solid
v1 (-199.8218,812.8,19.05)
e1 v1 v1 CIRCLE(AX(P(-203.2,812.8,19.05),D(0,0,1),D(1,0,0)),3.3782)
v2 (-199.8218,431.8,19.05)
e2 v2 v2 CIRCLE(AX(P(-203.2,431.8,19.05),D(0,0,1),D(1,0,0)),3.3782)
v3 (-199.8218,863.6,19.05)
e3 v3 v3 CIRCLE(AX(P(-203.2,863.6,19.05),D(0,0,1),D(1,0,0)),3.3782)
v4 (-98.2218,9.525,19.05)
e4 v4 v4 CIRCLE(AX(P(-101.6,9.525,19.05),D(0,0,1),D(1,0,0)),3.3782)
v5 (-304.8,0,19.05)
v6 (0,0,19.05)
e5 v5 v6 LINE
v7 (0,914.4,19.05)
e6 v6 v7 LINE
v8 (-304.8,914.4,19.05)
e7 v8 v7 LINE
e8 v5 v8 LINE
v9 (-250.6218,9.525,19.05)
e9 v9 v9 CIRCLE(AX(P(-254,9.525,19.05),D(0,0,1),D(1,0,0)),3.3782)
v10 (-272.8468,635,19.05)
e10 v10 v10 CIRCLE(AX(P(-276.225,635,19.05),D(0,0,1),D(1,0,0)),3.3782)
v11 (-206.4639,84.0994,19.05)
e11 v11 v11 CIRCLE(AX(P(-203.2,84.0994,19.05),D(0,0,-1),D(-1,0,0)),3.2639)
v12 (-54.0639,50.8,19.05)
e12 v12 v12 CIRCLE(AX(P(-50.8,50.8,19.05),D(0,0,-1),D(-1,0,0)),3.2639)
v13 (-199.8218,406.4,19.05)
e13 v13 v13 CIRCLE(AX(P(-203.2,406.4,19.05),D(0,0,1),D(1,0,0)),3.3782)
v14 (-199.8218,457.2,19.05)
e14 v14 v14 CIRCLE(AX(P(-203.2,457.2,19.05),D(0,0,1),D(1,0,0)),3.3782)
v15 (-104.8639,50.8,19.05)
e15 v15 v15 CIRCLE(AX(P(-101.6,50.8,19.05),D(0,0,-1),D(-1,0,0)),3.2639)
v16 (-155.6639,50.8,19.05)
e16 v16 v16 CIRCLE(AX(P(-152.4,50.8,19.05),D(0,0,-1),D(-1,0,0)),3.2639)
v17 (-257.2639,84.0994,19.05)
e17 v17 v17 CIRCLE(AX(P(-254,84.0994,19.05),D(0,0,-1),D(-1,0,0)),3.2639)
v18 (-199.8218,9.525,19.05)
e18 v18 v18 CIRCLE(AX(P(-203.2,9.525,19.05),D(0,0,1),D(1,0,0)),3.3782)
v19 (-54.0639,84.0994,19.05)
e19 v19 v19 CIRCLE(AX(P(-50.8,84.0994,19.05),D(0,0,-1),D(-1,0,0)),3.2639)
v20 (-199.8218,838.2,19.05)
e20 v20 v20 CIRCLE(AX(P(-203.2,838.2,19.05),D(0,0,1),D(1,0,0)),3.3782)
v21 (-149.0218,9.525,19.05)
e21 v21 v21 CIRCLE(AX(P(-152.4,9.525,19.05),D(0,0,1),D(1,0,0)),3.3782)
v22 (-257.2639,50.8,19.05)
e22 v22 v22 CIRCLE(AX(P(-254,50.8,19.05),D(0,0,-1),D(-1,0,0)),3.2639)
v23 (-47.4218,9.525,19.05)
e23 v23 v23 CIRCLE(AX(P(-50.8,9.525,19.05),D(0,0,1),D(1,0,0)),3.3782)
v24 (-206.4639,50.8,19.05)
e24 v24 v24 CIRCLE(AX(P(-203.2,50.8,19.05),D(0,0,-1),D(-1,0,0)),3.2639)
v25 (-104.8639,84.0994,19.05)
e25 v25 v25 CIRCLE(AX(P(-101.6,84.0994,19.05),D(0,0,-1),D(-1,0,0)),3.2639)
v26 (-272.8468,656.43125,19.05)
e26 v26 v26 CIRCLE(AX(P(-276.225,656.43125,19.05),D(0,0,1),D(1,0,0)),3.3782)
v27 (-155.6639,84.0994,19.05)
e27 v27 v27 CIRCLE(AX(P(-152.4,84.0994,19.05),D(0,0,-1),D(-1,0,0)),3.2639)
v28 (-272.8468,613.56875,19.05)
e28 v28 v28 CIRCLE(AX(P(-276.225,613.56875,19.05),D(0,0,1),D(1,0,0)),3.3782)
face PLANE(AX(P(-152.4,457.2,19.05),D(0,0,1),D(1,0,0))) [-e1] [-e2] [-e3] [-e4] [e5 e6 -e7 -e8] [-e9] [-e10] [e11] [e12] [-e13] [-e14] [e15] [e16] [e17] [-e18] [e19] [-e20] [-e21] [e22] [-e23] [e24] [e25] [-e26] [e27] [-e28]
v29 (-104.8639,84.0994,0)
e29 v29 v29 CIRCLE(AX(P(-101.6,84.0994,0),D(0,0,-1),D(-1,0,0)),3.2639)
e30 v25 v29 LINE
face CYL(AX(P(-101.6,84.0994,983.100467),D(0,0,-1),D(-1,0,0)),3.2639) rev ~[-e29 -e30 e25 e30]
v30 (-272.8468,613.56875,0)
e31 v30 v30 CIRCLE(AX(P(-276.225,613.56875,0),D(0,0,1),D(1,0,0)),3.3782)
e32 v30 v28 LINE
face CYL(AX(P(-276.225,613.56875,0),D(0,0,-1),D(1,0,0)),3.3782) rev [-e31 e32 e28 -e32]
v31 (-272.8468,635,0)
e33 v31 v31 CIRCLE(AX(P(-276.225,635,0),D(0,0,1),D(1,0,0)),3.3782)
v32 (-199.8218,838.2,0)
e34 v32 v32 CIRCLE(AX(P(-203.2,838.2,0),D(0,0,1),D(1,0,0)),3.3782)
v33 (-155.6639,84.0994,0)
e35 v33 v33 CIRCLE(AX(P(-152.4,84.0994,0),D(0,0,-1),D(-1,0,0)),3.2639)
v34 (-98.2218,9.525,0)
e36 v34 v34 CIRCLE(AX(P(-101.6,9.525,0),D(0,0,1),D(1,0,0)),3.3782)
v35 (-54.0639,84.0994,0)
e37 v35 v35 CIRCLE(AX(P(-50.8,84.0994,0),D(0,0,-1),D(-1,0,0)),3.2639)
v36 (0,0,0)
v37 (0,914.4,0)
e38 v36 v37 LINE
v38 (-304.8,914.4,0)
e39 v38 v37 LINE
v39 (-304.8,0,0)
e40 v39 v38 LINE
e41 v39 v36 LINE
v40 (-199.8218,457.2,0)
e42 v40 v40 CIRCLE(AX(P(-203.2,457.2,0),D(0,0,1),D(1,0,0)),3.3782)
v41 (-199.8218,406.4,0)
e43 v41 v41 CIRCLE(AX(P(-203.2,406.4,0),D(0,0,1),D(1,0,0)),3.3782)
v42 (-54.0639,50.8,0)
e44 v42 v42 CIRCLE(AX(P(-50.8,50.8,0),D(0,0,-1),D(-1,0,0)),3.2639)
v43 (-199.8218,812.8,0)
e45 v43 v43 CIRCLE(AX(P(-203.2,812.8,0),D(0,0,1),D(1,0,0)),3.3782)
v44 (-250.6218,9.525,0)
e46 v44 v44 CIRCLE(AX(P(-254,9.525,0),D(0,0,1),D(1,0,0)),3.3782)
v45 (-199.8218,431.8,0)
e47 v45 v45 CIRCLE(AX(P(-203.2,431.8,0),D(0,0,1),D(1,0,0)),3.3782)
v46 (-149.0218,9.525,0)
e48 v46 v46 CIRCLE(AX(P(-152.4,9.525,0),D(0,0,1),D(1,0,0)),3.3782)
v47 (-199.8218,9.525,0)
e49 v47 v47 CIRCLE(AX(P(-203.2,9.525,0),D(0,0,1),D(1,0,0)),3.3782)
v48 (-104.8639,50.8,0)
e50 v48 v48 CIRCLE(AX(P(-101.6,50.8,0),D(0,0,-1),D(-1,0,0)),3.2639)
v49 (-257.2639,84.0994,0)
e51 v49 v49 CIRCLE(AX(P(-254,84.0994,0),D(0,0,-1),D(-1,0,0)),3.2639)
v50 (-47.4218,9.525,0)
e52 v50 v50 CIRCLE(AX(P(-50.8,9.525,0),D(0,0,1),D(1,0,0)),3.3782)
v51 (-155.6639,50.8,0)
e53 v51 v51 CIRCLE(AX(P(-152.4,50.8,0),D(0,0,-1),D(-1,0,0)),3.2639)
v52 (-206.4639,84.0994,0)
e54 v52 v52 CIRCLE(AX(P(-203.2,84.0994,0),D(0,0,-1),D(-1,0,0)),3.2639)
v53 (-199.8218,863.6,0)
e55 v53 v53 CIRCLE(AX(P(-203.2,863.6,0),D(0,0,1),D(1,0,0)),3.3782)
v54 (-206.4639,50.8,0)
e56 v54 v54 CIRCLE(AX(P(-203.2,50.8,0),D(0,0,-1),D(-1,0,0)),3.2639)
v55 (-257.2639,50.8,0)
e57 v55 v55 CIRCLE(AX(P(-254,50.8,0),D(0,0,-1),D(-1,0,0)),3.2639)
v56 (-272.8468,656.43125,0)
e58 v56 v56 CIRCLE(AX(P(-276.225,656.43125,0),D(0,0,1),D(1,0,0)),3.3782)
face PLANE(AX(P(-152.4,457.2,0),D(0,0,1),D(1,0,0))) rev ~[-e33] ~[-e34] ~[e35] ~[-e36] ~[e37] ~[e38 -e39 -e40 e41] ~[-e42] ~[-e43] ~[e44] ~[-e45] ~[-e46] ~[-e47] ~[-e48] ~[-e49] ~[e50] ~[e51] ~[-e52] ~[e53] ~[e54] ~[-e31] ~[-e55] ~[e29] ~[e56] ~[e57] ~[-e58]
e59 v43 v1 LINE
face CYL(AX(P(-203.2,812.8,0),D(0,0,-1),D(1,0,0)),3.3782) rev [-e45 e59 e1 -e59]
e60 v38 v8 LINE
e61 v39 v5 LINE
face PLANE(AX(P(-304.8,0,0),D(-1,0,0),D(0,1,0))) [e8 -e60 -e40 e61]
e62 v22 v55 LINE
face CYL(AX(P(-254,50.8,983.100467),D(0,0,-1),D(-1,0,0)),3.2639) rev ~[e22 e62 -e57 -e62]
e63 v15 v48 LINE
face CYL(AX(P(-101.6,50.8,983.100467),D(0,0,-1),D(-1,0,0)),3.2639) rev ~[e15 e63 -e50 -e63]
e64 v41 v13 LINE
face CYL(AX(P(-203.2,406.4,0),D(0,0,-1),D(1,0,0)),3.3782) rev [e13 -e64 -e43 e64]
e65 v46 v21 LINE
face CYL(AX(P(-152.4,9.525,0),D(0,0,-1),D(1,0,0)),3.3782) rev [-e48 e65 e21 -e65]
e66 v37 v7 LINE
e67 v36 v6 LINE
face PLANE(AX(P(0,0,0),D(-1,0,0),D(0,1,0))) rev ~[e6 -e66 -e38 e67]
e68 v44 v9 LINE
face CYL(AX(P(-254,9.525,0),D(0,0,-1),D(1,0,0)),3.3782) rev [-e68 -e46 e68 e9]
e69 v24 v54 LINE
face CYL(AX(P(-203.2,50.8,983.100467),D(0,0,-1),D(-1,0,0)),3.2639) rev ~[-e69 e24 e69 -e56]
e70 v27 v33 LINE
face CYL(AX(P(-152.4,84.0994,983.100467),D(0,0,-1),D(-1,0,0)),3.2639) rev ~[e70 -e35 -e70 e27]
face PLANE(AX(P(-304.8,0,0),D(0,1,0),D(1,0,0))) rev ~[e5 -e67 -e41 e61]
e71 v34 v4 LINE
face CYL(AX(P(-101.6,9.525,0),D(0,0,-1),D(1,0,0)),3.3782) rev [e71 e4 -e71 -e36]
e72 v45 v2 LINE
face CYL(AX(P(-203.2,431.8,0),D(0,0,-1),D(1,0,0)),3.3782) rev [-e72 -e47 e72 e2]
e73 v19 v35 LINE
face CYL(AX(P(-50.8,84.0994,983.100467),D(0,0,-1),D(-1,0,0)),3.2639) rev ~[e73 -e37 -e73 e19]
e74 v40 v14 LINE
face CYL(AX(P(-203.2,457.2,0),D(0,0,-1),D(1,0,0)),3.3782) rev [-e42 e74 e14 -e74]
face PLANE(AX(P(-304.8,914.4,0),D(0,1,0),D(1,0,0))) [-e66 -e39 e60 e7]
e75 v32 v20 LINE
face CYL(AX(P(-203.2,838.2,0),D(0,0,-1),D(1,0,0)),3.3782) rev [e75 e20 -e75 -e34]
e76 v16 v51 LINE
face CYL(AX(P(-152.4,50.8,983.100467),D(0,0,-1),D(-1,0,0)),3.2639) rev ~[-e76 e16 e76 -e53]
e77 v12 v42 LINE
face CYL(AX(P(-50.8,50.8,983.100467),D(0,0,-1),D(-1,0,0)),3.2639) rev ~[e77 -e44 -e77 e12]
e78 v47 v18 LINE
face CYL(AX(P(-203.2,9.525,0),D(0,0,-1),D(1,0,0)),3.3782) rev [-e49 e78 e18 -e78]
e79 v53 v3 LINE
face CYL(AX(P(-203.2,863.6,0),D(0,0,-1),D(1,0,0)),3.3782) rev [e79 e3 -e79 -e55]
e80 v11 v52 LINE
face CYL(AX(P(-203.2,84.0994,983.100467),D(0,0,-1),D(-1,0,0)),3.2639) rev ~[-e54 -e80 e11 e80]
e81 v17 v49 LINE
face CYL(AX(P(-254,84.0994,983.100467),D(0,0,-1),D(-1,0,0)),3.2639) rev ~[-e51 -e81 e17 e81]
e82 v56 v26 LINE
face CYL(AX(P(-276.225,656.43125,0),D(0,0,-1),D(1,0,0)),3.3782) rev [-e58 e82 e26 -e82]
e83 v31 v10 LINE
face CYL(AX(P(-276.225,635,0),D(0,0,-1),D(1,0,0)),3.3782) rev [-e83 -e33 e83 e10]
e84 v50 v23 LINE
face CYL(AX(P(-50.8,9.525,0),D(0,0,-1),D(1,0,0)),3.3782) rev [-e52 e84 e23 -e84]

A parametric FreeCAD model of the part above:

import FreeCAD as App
import Part
import Sketcher
Q = App.Units.Quantity

doc = App.newDocument("Part")
body = doc.addObject("PartDesign::Body", "Body")

sketch1 = doc.addObject("Sketcher::SketchObject", "Sketch")
body.addObject(sketch1)
sketch1.AttachmentSupport = (doc.XY_Plane, [""])
sketch1.MapMode = "FlatFace"
sketch1.addGeometry(Part.LineSegment(App.Vector(-304.8, 914.4, 0), App.Vector(-304.8, 0, 0)), False)
sketch1.addGeometry(Part.LineSegment(App.Vector(-304.8, 0, 0), App.Vector(0, 0, 0)), False)
sketch1.addGeometry(Part.LineSegment(App.Vector(0, 0, 0), App.Vector(0, 914.4, 0)), False)
sketch1.addGeometry(Part.LineSegment(App.Vector(0, 914.4, 0), App.Vector(-304.8, 914.4, 0)), False)
sketch1.addGeometry(Part.Circle(App.Vector(-254, 9.5, 0), App.Vector(0, 0, 1), 3.4), False)
sketch1.addGeometry(Part.Circle(App.Vector(-203.2, 9.5, 0), App.Vector(0, 0, 1), 3.4), False)
sketch1.addGeometry(Part.Circle(App.Vector(-203.2, 406.4, 0), App.Vector(0, 0, 1), 3.4), False)
sketch1.addGeometry(Part.Circle(App.Vector(-203.2, 431.8, 0), App.Vector(0, 0, 1), 3.4), False)
sketch1.addGeometry(Part.Circle(App.Vector(-152.4, 9.5, 0), App.Vector(0, 0, 1), 3.4), False)
sketch1.addGeometry(Part.Circle(App.Vector(-101.6, 9.5, 0), App.Vector(0, 0, 1), 3.4), False)
sketch1.addGeometry(Part.Circle(App.Vector(-50.8, 9.5, 0), App.Vector(0, 0, 1), 3.4), False)
sketch1.addGeometry(Part.Circle(App.Vector(-276.2, 613.6, 0), App.Vector(0, 0, 1), 3.4), False)
sketch1.addGeometry(Part.Circle(App.Vector(-276.2, 635, 0), App.Vector(0, 0, 1), 3.4), False)
sketch1.addGeometry(Part.Circle(App.Vector(-203.2, 457.2, 0), App.Vector(0, 0, 1), 3.4), False)
sketch1.addGeometry(Part.Circle(App.Vector(-276.2, 656.4, 0), App.Vector(0, 0, 1), 3.4), False)
sketch1.addGeometry(Part.Circle(App.Vector(-203.2, 812.8, 0), App.Vector(0, 0, 1), 3.4), False)
sketch1.addGeometry(Part.Circle(App.Vector(-203.2, 838.2, 0), App.Vector(0, 0, 1), 3.4), False)
sketch1.addGeometry(Part.Circle(App.Vector(-203.2, 863.6, 0), App.Vector(0, 0, 1), 3.4), False)
sketch1.addConstraint(Sketcher.Constraint("Coincident", 0, 2, 1, 1))
sketch1.addConstraint(Sketcher.Constraint("Coincident", 1, 2, 2, 1))
sketch1.addConstraint(Sketcher.Constraint("Coincident", 2, 2, 3, 1))
sketch1.addConstraint(Sketcher.Constraint("Coincident", 3, 2, 0, 1))
sketch1.addConstraint(Sketcher.Constraint("Vertical", 0))
sketch1.addConstraint(Sketcher.Constraint("Horizontal", 1))
sketch1.addConstraint(Sketcher.Constraint("Vertical", 2))
sketch1.addConstraint(Sketcher.Constraint("Horizontal", 3))
sketch1.addConstraint(Sketcher.Constraint("Coincident", 1, 2, -1, 1))
sketch1.addConstraint(Sketcher.Constraint("Equal", 4, 5))
sketch1.addConstraint(Sketcher.Constraint("Equal", 5, 6))
sketch1.addConstraint(Sketcher.Constraint("Equal", 6, 7))
sketch1.addConstraint(Sketcher.Constraint("Equal", 7, 8))
sketch1.addConstraint(Sketcher.Constraint("Equal", 8, 9))
sketch1.addConstraint(Sketcher.Constraint("Equal", 9, 10))
sketch1.addConstraint(Sketcher.Constraint("Equal", 10, 11))
sketch1.addConstraint(Sketcher.Constraint("Equal", 11, 12))
sketch1.addConstraint(Sketcher.Constraint("Equal", 12, 13))
sketch1.addConstraint(Sketcher.Constraint("Equal", 13, 14))
sketch1.addConstraint(Sketcher.Constraint("Equal", 14, 15))
sketch1.addConstraint(Sketcher.Constraint("Equal", 15, 16))
sketch1.addConstraint(Sketcher.Constraint("Equal", 16, 17))
sketch1.addConstraint(Sketcher.Constraint("Horizontal", 4, 3, 5, 3))
sketch1.addConstraint(Sketcher.Constraint("Horizontal", 5, 3, 8, 3))
sketch1.addConstraint(Sketcher.Constraint("Horizontal", 8, 3, 9, 3))
sketch1.addConstraint(Sketcher.Constraint("Horizontal", 9, 3, 10, 3))
sketch1.addConstraint(Sketcher.Constraint("Vertical", 5, 3, 6, 3))
sketch1.addConstraint(Sketcher.Constraint("Vertical", 6, 3, 7, 3))
sketch1.addConstraint(Sketcher.Constraint("Vertical", 11, 3, 12, 3))
sketch1.addConstraint(Sketcher.Constraint("Vertical", 7, 3, 13, 3))
sketch1.addConstraint(Sketcher.Constraint("Vertical", 12, 3, 14, 3))
sketch1.addConstraint(Sketcher.Constraint("Vertical", 13, 3, 15, 3))
sketch1.addConstraint(Sketcher.Constraint("Vertical", 15, 3, 16, 3))
sketch1.addConstraint(Sketcher.Constraint("Vertical", 16, 3, 17, 3))
sketch1.addConstraint(Sketcher.Constraint("DistanceX", 1, 1, 1, 2, Q("12 in")))
sketch1.addConstraint(Sketcher.Constraint("DistanceY", 0, 2, 0, 1, Q("36 in")))
sketch1.addConstraint(Sketcher.Constraint("Diameter", 4, Q("0.266 in")))
sketch1.addConstraint(Sketcher.Constraint("DistanceX", 4, 3, -1, 1, Q("10 in")))
sketch1.addConstraint(Sketcher.Constraint("DistanceX", 5, 3, -1, 1, Q("8 in")))
sketch1.addConstraint(Sketcher.Constraint("DistanceY", -1, 1, 6, 3, Q("16 in")))
sketch1.addConstraint(Sketcher.Constraint("DistanceY", -1, 1, 7, 3, Q("17 in")))
sketch1.addConstraint(Sketcher.Constraint("DistanceX", 8, 3, -1, 1, Q("6 in")))
sketch1.addConstraint(Sketcher.Constraint("DistanceX", 9, 3, -1, 1, Q("4 in")))
sketch1.addConstraint(Sketcher.Constraint("DistanceX", 10, 3, -1, 1, Q("2 in")))
sketch1.addConstraint(Sketcher.Constraint("DistanceY", -1, 1, 12, 3, Q("25 in")))
sketch1.addConstraint(Sketcher.Constraint("DistanceY", -1, 1, 13, 3, Q("18 in")))
sketch1.addConstraint(Sketcher.Constraint("DistanceY", -1, 1, 15, 3, Q("32 in")))
sketch1.addConstraint(Sketcher.Constraint("DistanceY", -1, 1, 16, 3, Q("33 in")))
sketch1.addConstraint(Sketcher.Constraint("DistanceY", -1, 1, 17, 3, Q("34 in")))
sketch1.addConstraint(Sketcher.Constraint("DistanceY", -1, 1, 4, 3, Q("0.375 in")))
sketch1.addConstraint(Sketcher.Constraint("DistanceX", 11, 3, -1, 1, Q("10.875 in")))
sketch1.addConstraint(Sketcher.Constraint("DistanceY", -1, 1, 11, 3, Q("24.15625 in")))
sketch1.addConstraint(Sketcher.Constraint("DistanceY", -1, 1, 14, 3, Q("25.84375 in")))
pad1 = doc.addObject("PartDesign::Pad", "Pad")
body.addObject(pad1)
pad1.Profile = sketch1
pad1.Length = Q("0.75 in")

sketch2 = doc.addObject("Sketcher::SketchObject", "Sketch001")
body.addObject(sketch2)
sketch2.AttachmentSupport = (doc.XY_Plane, [""])
sketch2.MapMode = "FlatFace"
sketch2.AttachmentOffset = App.Placement(App.Vector(0, 0, 0.75 * 25.4), App.Rotation())
sketch2.addGeometry(Part.Circle(App.Vector(-254, 84.1, 0), App.Vector(0, 0, 1), 3.3), False)
sketch2.addGeometry(Part.Circle(App.Vector(-203.2, 84.1, 0), App.Vector(0, 0, 1), 3.3), False)
sketch2.addGeometry(Part.Circle(App.Vector(-152.4, 84.1, 0), App.Vector(0, 0, 1), 3.3), False)
sketch2.addGeometry(Part.Circle(App.Vector(-101.6, 84.1, 0), App.Vector(0, 0, 1), 3.3), False)
sketch2.addGeometry(Part.Circle(App.Vector(-50.8, 84.1, 0), App.Vector(0, 0, 1), 3.3), False)
sketch2.addGeometry(Part.Circle(App.Vector(-50.8, 50.8, 0), App.Vector(0, 0, 1), 3.3), False)
sketch2.addGeometry(Part.Circle(App.Vector(-101.6, 50.8, 0), App.Vector(0, 0, 1), 3.3), False)
sketch2.addGeometry(Part.Circle(App.Vector(-152.4, 50.8, 0), App.Vector(0, 0, 1), 3.3), False)
sketch2.addGeometry(Part.Circle(App.Vector(-203.2, 50.8, 0), App.Vector(0, 0, 1), 3.3), False)
sketch2.addGeometry(Part.Circle(App.Vector(-254, 50.8, 0), App.Vector(0, 0, 1), 3.3), False)
sketch2.addConstraint(Sketcher.Constraint("Equal", 0, 1))
sketch2.addConstraint(Sketcher.Constraint("Equal", 1, 2))
sketch2.addConstraint(Sketcher.Constraint("Equal", 2, 3))
sketch2.addConstraint(Sketcher.Constraint("Equal", 3, 4))
sketch2.addConstraint(Sketcher.Constraint("Equal", 4, 5))
sketch2.addConstraint(Sketcher.Constraint("Equal", 5, 6))
sketch2.addConstraint(Sketcher.Constraint("Equal", 6, 7))
sketch2.addConstraint(Sketcher.Constraint("Equal", 7, 8))
sketch2.addConstraint(Sketcher.Constraint("Equal", 8, 9))
sketch2.addConstraint(Sketcher.Constraint("Horizontal", 0, 3, 1, 3))
sketch2.addConstraint(Sketcher.Constraint("Horizontal", 1, 3, 2, 3))
sketch2.addConstraint(Sketcher.Constraint("Horizontal", 2, 3, 3, 3))
sketch2.addConstraint(Sketcher.Constraint("Horizontal", 3, 3, 4, 3))
sketch2.addConstraint(Sketcher.Constraint("Horizontal", 5, 3, 6, 3))
sketch2.addConstraint(Sketcher.Constraint("Horizontal", 6, 3, 7, 3))
sketch2.addConstraint(Sketcher.Constraint("Horizontal", 7, 3, 8, 3))
sketch2.addConstraint(Sketcher.Constraint("Horizontal", 8, 3, 9, 3))
sketch2.addConstraint(Sketcher.Constraint("Vertical", 4, 3, 5, 3))
sketch2.addConstraint(Sketcher.Constraint("Vertical", 3, 3, 6, 3))
sketch2.addConstraint(Sketcher.Constraint("Vertical", 2, 3, 7, 3))
sketch2.addConstraint(Sketcher.Constraint("Vertical", 1, 3, 8, 3))
sketch2.addConstraint(Sketcher.Constraint("Vertical", 0, 3, 9, 3))
sketch2.addConstraint(Sketcher.Constraint("Diameter", 0, Q("0.257 in")))
sketch2.addConstraint(Sketcher.Constraint("DistanceX", 0, 3, -1, 1, Q("10 in")))
sketch2.addConstraint(Sketcher.Constraint("DistanceX", 1, 3, -1, 1, Q("8 in")))
sketch2.addConstraint(Sketcher.Constraint("DistanceX", 2, 3, -1, 1, Q("6 in")))
sketch2.addConstraint(Sketcher.Constraint("DistanceX", 3, 3, -1, 1, Q("4 in")))
sketch2.addConstraint(Sketcher.Constraint("DistanceX", 4, 3, -1, 1, Q("2 in")))
sketch2.addConstraint(Sketcher.Constraint("DistanceY", -1, 1, 5, 3, Q("2 in")))
sketch2.addConstraint(Sketcher.Constraint("DistanceY", -1, 1, 0, 3, Q("3.311 in")))
doc.recompute()
hole = doc.addObject("PartDesign::Hole", "Hole")
body.addObject(hole)
hole.Profile = sketch2
hole.ThreadType = "None"
hole.Diameter = Q("0.257 in")
hole.DepthType = "ThroughAll"

doc.recompute()
